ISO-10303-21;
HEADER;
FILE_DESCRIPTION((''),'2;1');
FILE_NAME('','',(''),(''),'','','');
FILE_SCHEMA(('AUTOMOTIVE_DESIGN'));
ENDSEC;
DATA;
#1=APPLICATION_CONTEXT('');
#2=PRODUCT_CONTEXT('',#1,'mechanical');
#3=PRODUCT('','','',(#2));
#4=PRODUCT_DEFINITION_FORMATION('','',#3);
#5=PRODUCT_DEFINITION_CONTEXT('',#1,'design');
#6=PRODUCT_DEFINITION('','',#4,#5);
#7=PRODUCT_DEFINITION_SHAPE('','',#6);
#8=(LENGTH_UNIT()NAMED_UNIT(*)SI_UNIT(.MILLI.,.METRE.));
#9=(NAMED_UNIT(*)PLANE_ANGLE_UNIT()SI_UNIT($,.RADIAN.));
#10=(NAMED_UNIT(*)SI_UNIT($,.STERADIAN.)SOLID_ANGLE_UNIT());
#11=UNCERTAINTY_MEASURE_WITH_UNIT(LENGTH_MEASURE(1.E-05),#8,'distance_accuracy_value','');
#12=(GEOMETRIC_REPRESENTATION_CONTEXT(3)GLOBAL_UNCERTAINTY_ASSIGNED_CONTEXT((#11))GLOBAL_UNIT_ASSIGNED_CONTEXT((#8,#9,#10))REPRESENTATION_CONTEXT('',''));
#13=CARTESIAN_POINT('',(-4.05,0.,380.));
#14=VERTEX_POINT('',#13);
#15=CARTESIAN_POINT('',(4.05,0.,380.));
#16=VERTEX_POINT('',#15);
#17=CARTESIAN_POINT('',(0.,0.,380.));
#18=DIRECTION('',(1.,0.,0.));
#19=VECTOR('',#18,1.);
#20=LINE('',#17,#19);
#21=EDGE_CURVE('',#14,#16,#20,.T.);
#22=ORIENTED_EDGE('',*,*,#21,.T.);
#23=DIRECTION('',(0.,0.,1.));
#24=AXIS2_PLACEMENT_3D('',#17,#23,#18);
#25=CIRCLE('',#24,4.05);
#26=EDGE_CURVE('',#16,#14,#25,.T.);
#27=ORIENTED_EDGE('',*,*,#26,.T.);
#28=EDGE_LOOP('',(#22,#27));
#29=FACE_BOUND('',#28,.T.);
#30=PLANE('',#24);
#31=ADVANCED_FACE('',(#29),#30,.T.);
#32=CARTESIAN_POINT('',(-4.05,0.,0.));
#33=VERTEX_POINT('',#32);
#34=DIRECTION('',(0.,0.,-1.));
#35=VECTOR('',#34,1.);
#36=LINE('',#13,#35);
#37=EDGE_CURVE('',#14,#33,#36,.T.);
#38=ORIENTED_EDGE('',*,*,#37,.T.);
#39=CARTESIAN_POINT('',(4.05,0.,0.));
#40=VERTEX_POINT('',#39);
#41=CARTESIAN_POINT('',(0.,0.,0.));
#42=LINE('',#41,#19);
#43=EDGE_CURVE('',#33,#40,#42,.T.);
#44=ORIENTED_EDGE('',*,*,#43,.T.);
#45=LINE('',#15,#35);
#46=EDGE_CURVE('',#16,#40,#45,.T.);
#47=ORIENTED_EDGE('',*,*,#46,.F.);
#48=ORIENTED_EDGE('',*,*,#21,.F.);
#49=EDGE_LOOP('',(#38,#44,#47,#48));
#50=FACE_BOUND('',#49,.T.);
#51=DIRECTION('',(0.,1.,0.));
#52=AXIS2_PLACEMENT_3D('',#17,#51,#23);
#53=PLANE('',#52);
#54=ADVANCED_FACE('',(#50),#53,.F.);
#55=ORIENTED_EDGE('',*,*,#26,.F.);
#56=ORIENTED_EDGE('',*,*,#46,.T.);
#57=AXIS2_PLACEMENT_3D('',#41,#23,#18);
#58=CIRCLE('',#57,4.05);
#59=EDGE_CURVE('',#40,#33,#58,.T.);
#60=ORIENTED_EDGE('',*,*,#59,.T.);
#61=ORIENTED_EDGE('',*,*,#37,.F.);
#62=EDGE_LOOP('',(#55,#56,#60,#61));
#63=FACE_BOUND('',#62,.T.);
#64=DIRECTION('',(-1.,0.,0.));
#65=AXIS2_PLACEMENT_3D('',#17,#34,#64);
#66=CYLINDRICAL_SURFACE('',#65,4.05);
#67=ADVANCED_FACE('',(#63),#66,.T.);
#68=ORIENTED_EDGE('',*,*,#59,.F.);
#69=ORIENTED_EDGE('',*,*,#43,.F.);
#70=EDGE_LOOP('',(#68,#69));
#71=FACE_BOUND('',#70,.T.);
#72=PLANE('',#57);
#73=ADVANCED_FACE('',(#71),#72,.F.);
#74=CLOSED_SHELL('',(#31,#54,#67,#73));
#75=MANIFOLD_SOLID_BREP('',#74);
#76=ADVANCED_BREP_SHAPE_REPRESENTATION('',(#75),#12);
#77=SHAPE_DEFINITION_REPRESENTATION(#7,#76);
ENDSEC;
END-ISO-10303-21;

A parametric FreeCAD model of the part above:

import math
import FreeCAD as App
import Part
import Sketcher

V = App.Vector

doc = App.newDocument("Part")
body = doc.addObject("PartDesign::Body", "Body")

# Sketch on XY plane
sketch1 = body.newObject("Sketcher::SketchObject", "Sketch")
sketch1.AttachmentSupport = (doc.getObject("XY_Plane"), [""])
sketch1.MapMode = "FlatFace"
sketch1.addGeometry(Part.ArcOfCircle(Part.Circle(V(0, 0, 0), V(0, 0, 1), 4), math.radians(0), math.radians(180)), False)
sketch1.addGeometry(Part.LineSegment(V(-4, 0, 0), V(4, 0, 0)), False)
sketch1.addConstraint(Sketcher.Constraint("Coincident", 0, 1, 1, 2))
sketch1.addConstraint(Sketcher.Constraint("Coincident", 1, 1, 0, 2))
sketch1.addConstraint(Sketcher.Constraint("Horizontal", 1))
sketch1.addConstraint(Sketcher.Constraint("Coincident", 0, 3, -1, 1))
sketch1.addConstraint(Sketcher.Constraint("PointOnObject", 0, 1, -1))
sketch1.addConstraint(Sketcher.Constraint("Radius", 0, 4.05))
pad1 = body.newObject("PartDesign::Pad", "Pad")
pad1.Profile = sketch1
pad1.Length = 380

doc.recompute()
